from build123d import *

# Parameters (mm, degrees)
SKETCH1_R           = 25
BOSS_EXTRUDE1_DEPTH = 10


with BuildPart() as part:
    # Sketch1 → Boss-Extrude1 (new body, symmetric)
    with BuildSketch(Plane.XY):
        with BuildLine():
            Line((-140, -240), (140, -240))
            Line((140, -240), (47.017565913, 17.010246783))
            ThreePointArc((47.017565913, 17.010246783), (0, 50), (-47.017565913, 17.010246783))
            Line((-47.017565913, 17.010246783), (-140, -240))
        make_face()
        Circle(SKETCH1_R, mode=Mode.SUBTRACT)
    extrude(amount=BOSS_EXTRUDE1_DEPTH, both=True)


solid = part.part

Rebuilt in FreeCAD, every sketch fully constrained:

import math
import FreeCAD as App
import Part
import Sketcher

doc = App.newDocument("Part")
body = doc.addObject("PartDesign::Body", "Body")

# Sketch on XY plane
sketch1 = body.newObject("Sketcher::SketchObject", "Sketch")
sketch1.AttachmentSupport = (doc.getObject("XY_Plane"), [""])
sketch1.MapMode = "FlatFace"
sketch1.addGeometry([
    Part.LineSegment(App.Vector(-140, -240, 0), App.Vector(140, -240, 0)),  # 0
    Part.LineSegment(App.Vector(140, -240, 0), App.Vector(47.017566, 17.010247, 0)),  # 1
    Part.ArcOfCircle(Part.Circle(App.Vector(0, 0, 0), App.Vector(0, 0, 1), 50), math.radians(19.88936), math.radians(160.11064)),  # 2
    Part.LineSegment(App.Vector(-47.017566, 17.010247, 0), App.Vector(-140, -240, 0)),  # 3
    Part.Circle(App.Vector(0, 0, 0), App.Vector(0, 0, 1), 25),  # 4
], False)
sketch1.addConstraint([
    Sketcher.Constraint("Coincident", 0, 2, 1, 1),
    Sketcher.Constraint("Tangent", 1, 2, 2, 1),
    Sketcher.Constraint("Tangent", 2, 2, 3, 1),
    Sketcher.Constraint("Coincident", 3, 2, 0, 1),
    Sketcher.Constraint("Horizontal", 0),
    Sketcher.Constraint("Coincident", 2, 3, -1, 1),
    Sketcher.Constraint("Coincident", 4, 3, -1, 1),
    Sketcher.Constraint("Horizontal", 1, 2, 2, 2),
    Sketcher.Constraint("Diameter", 4, 50.0),
    Sketcher.Constraint("Radius", 2, 50.0),
    Sketcher.Constraint("DistanceX", 0, 1, 0, 2, 280.0),
    Sketcher.Constraint("DistanceY", 0, 2, -1, 1, 240.0),
])
pad1 = body.newObject("PartDesign::Pad", "Pad")
pad1.Profile = sketch1
pad1.Length = 20
pad1.Midplane = True

doc.recompute()
